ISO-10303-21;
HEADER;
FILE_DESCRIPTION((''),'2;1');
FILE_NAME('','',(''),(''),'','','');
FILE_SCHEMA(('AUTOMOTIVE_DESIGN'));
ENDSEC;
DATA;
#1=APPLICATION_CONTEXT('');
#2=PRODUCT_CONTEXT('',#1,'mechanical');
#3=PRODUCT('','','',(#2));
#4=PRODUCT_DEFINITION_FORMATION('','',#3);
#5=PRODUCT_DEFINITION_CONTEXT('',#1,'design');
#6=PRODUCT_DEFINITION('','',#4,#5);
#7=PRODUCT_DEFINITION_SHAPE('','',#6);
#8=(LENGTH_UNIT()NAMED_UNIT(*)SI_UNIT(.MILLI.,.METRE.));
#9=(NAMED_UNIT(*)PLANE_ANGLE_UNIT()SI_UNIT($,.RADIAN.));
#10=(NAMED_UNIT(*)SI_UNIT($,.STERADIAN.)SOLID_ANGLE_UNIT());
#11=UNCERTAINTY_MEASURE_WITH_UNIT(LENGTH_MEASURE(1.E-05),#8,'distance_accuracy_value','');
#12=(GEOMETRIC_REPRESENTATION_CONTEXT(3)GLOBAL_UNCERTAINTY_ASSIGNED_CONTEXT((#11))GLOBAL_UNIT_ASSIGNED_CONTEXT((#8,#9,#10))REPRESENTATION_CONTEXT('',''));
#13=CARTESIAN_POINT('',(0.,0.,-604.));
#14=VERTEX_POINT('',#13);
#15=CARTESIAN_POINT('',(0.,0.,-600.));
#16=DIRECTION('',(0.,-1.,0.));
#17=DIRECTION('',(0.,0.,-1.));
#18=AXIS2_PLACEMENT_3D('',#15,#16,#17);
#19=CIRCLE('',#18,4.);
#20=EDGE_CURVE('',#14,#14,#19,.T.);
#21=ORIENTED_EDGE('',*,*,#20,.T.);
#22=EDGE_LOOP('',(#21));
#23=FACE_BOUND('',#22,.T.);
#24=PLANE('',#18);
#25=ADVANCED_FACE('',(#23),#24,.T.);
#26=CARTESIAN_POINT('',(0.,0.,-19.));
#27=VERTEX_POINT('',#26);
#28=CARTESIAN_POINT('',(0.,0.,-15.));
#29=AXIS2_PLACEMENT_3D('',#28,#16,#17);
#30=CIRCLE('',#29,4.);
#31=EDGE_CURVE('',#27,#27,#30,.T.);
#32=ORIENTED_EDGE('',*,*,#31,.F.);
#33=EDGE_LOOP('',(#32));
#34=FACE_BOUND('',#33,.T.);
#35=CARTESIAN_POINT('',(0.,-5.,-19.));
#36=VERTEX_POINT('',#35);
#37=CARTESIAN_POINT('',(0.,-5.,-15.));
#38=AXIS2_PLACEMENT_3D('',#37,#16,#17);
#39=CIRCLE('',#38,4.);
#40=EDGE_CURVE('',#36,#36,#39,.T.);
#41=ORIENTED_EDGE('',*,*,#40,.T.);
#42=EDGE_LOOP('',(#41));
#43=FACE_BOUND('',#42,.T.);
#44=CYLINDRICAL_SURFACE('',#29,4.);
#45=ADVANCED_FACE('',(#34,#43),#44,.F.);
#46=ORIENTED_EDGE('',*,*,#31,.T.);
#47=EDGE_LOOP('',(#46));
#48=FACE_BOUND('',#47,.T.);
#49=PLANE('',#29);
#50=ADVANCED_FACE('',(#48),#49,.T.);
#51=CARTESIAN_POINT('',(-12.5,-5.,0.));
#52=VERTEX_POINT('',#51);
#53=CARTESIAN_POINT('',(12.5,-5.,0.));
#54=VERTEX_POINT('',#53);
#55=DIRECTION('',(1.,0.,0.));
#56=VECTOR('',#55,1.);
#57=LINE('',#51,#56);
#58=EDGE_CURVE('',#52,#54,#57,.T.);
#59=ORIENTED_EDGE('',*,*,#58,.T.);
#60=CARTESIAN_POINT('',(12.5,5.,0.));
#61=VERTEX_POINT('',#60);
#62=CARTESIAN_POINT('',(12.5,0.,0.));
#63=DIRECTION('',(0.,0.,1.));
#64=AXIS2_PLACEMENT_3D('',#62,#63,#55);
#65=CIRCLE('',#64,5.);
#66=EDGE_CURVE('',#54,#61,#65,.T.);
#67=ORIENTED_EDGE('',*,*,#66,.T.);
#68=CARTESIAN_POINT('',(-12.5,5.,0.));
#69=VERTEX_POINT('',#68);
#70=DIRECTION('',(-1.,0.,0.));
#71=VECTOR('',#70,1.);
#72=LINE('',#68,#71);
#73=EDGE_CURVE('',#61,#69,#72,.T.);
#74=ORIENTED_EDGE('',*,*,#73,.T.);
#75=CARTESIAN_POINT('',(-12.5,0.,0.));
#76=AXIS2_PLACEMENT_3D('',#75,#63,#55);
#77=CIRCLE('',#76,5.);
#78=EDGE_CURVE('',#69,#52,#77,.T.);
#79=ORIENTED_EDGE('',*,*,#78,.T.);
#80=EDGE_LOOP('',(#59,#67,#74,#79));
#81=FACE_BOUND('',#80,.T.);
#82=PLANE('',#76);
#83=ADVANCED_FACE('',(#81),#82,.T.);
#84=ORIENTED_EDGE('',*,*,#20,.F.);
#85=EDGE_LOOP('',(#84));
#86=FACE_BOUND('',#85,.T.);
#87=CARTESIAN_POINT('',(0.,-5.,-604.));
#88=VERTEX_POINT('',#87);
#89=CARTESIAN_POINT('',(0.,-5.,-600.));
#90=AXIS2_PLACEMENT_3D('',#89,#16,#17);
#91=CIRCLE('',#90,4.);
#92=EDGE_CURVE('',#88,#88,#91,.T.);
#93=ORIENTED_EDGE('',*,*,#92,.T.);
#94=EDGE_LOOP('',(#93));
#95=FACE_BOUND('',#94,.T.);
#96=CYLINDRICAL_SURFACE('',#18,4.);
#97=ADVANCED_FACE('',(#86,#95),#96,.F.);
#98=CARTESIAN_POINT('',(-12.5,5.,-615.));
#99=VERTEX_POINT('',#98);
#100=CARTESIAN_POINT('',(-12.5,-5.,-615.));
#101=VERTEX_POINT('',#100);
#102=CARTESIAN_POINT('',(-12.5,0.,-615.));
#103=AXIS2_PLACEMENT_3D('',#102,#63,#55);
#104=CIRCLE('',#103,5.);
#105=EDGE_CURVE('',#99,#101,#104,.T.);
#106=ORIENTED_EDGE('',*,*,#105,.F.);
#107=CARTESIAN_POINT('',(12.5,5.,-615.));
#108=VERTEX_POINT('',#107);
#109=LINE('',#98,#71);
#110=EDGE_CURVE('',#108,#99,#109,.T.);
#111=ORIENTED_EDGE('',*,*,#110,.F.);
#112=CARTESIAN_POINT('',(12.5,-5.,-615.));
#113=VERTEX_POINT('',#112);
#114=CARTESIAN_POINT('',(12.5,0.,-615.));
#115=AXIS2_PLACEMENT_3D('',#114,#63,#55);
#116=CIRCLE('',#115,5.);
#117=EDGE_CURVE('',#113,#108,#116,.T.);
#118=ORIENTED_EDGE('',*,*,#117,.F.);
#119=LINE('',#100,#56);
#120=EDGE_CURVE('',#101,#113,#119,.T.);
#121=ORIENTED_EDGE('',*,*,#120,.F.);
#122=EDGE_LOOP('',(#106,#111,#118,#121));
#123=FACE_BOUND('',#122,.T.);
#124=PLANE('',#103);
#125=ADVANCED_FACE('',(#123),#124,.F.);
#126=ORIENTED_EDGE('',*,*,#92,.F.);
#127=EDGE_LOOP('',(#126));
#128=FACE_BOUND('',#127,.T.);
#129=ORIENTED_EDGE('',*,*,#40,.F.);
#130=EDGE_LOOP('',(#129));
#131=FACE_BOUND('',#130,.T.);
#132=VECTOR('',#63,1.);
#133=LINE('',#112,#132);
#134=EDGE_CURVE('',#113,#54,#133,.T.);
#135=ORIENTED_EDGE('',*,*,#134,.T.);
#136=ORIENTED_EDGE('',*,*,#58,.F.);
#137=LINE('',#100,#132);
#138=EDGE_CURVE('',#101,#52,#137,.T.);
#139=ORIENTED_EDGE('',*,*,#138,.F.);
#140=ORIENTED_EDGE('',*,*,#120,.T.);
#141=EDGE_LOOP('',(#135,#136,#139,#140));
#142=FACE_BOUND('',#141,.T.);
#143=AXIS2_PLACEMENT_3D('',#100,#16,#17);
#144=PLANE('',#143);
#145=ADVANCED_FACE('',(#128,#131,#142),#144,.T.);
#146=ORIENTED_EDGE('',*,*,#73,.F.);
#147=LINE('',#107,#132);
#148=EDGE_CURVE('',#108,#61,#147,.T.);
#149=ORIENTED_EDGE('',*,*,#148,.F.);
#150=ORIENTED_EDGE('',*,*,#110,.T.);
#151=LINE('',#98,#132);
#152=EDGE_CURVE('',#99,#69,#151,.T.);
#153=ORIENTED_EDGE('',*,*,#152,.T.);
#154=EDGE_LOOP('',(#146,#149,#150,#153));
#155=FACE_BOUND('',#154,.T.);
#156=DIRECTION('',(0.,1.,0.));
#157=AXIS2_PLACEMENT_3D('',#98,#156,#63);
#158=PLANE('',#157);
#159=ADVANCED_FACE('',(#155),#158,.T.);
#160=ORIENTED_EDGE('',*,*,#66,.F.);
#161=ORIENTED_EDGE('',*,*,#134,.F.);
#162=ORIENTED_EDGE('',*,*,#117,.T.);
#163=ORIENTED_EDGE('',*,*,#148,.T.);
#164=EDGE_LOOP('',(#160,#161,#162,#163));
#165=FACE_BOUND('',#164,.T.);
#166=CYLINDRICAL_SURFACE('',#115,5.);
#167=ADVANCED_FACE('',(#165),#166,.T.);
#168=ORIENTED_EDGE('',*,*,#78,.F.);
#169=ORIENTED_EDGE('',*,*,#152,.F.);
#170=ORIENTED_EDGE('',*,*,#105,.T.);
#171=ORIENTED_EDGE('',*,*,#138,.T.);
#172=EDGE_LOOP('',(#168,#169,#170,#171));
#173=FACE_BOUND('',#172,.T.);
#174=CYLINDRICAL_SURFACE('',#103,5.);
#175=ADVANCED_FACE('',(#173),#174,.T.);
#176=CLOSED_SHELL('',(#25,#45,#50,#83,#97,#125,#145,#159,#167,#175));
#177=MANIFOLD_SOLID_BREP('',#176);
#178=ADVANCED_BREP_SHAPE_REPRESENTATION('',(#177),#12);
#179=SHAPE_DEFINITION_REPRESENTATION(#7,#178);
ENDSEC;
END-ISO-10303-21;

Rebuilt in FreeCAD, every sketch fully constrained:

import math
import FreeCAD as App
import Part
import Sketcher
from FreeCAD import Vector

doc = App.newDocument("Part")
body = doc.addObject("PartDesign::Body", "Body")

sketch1 = doc.addObject("Sketcher::SketchObject", "Sketch")
body.addObject(sketch1)
sketch1.AttachmentSupport = (doc.XY_Plane, [""])
sketch1.MapMode = "FlatFace"
sketch1.addGeometry([
    Part.LineSegment(Vector(12, 5, 0), Vector(-12, 5, 0)),
    Part.ArcOfCircle(Part.Circle(Vector(-12, 0, 0), Vector(0, 0, 1), 5), math.radians(90), math.radians(270)),
    Part.LineSegment(Vector(-12, -5, 0), Vector(12, -5, 0)),
    Part.ArcOfCircle(Part.Circle(Vector(12, 0, 0), Vector(0, 0, 1), 5), math.radians(-90), math.radians(90)),
], False)
sketch1.addConstraint([
    Sketcher.Constraint("Tangent", 0, 2, 1, 1),
    Sketcher.Constraint("Tangent", 1, 2, 2, 1),
    Sketcher.Constraint("Tangent", 2, 2, 3, 1),
    Sketcher.Constraint("Tangent", 3, 2, 0, 1),
    Sketcher.Constraint("Horizontal", 0),
    Sketcher.Constraint("Horizontal", 2),
    Sketcher.Constraint("Symmetric", 1, 3, 3, 3, -1, 1),
    Sketcher.Constraint("Radius", 1, 5.0),
    Sketcher.Constraint("DistanceX", 0, 2, 0, 1, 25.0),
])
pad1 = doc.addObject("PartDesign::Pad", "Pad")
body.addObject(pad1)
pad1.Profile = sketch1
pad1.Length = 615
pad1.Reversed = True

sketch2 = doc.addObject("Sketcher::SketchObject", "Sketch001")
body.addObject(sketch2)
sketch2.AttachmentSupport = (doc.XZ_Plane, [""])
sketch2.MapMode = "FlatFace"
sketch2.AttachmentOffset = App.Placement(Vector(0, 0, 5), App.Rotation())
sketch2.addGeometry([
    Part.Circle(Vector(0, -15, 0), Vector(0, 0, 1), 4),
    Part.Circle(Vector(0, -600, 0), Vector(0, 0, 1), 4),
], False)
sketch2.addConstraint([
    Sketcher.Constraint("Equal", 0, 1),
    Sketcher.Constraint("PointOnObject", 0, 3, -2),
    Sketcher.Constraint("PointOnObject", 1, 3, -2),
    Sketcher.Constraint("Diameter", 0, 8.0),
    Sketcher.Constraint("DistanceY", 0, 3, -1, 1, 15.0),
    Sketcher.Constraint("DistanceY", 1, 3, -1, 1, 600.0),
])
pocket1 = doc.addObject("PartDesign::Pocket", "Pocket")
body.addObject(pocket1)
pocket1.Profile = sketch2
pocket1.Length = 5

doc.recompute()
